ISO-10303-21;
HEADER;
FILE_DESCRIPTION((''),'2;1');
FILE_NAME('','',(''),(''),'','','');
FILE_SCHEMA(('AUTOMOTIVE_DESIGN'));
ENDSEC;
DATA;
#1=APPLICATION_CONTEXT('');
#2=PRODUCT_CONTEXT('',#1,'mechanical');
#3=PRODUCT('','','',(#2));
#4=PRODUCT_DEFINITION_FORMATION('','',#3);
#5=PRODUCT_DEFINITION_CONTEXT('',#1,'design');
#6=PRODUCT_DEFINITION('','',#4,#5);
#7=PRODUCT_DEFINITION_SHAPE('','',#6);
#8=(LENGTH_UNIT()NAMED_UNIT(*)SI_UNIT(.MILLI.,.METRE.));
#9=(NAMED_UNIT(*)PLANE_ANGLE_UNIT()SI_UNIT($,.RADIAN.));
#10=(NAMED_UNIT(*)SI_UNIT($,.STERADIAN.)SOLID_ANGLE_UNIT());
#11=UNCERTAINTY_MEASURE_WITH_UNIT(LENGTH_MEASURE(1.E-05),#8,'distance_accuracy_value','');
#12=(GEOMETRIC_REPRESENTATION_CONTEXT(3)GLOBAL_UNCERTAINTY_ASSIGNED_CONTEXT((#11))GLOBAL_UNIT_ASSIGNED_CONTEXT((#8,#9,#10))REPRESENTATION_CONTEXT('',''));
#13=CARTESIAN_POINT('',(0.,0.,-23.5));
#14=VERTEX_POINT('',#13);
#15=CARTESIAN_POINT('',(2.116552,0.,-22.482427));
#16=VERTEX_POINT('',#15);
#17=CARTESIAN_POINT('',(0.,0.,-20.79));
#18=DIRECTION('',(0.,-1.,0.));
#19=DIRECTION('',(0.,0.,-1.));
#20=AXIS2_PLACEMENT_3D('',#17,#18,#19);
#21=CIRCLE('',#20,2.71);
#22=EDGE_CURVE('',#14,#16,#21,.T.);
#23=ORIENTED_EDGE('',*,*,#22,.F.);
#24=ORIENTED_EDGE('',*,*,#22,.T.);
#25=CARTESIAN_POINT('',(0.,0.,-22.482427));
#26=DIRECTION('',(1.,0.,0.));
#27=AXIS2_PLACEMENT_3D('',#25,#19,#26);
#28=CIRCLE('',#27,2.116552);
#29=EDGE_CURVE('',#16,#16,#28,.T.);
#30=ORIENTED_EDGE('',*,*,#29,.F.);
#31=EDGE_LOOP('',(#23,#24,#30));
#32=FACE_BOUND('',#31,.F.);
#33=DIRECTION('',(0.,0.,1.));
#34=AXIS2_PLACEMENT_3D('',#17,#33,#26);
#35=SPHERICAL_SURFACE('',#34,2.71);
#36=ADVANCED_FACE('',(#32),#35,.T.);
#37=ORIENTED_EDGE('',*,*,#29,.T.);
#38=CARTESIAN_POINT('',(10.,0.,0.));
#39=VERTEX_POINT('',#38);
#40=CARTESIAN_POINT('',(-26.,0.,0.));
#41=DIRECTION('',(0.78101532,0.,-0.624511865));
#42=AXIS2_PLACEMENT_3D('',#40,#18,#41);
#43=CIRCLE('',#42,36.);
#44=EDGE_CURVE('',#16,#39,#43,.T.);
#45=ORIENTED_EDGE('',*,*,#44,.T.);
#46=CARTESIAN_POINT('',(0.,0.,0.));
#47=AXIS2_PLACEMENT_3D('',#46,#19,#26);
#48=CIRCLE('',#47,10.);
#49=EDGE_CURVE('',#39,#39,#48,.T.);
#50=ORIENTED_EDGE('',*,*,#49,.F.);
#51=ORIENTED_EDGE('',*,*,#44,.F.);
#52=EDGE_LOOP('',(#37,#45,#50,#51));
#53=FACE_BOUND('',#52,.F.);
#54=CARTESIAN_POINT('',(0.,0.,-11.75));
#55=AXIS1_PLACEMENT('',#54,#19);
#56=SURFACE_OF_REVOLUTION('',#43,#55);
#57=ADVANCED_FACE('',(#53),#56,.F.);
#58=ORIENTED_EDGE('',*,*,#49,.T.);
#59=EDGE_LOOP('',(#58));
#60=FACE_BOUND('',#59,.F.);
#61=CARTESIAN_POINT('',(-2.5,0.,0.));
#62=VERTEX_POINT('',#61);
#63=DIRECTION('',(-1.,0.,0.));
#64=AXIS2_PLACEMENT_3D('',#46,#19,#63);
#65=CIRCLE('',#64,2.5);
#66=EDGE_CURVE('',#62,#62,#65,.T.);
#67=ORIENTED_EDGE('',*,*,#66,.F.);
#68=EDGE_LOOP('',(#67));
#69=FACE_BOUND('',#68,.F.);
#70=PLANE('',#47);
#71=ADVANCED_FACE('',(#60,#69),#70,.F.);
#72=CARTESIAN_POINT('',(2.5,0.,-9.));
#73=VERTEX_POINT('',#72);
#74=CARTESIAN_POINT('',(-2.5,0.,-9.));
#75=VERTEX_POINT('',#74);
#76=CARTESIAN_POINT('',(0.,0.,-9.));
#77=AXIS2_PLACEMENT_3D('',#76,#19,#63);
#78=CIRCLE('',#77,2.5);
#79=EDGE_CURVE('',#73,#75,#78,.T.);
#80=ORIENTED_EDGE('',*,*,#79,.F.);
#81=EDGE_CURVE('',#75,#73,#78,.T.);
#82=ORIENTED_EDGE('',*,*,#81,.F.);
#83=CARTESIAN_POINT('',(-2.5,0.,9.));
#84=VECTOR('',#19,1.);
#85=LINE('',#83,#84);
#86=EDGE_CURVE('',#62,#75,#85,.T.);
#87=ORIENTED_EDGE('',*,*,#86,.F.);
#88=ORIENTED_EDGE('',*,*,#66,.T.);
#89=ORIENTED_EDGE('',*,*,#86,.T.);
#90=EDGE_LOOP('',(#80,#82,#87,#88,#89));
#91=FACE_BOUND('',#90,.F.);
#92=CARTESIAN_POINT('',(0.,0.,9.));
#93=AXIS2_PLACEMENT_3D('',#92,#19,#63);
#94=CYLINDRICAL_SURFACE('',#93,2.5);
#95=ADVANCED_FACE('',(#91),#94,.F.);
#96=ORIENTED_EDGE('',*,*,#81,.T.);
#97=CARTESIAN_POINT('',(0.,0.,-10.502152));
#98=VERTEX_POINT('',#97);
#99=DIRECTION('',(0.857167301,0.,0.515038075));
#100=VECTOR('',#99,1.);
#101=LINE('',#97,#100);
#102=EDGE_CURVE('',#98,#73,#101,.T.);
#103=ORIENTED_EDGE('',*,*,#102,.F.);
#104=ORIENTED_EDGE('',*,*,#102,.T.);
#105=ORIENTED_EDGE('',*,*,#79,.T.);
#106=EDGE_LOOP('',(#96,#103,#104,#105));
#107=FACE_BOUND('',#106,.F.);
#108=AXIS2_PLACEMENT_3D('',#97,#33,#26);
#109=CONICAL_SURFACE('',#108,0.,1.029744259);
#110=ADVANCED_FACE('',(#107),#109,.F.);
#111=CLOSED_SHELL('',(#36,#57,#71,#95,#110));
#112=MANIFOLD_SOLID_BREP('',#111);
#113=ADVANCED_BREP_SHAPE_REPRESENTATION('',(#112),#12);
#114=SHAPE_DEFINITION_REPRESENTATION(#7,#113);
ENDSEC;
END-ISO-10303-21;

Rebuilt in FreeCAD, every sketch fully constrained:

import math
import FreeCAD as App
import Part
import Sketcher
Q = App.Units.Quantity

doc = App.newDocument("Part")
body = doc.addObject("PartDesign::Body", "Body")

# Sketch on XZ plane
sketch1 = body.newObject("Sketcher::SketchObject", "Sketch")
sketch1.AttachmentSupport = (doc.getObject("XZ_Plane"), [""])
sketch1.MapMode = "FlatFace"
sketch1.addGeometry(Part.LineSegment(App.Vector(10, 0, 0), App.Vector(0, 0, 0)), False)
sketch1.addGeometry(Part.LineSegment(App.Vector(0, 0, 0), App.Vector(0, -23.5, 0)), False)
sketch1.addGeometry(Part.ArcOfCircle(Part.Circle(App.Vector(0, -20.8, 0), App.Vector(0, 0, 1), 2.7), math.radians(-90), math.radians(-39)), False)
sketch1.addGeometry(Part.ArcOfCircle(Part.Circle(App.Vector(-26, 0, 0), App.Vector(0, 0, 1), 36), math.radians(-39), math.radians(0)), False)
sketch1.addConstraint(Sketcher.Constraint("Coincident", 0, 2, 1, 1))
sketch1.addConstraint(Sketcher.Constraint("Coincident", 1, 2, 2, 1))
sketch1.addConstraint(Sketcher.Constraint("Tangent", 2, 2, 3, 1))
sketch1.addConstraint(Sketcher.Constraint("Coincident", 3, 2, 0, 1))
sketch1.addConstraint(Sketcher.Constraint("Horizontal", 0))
sketch1.addConstraint(Sketcher.Constraint("Vertical", 1))
sketch1.addConstraint(Sketcher.Constraint("Coincident", 0, 2, -1, 1))
sketch1.addConstraint(Sketcher.Constraint("PointOnObject", 2, 3, -2))
sketch1.addConstraint(Sketcher.Constraint("PointOnObject", 3, 3, -1))
sketch1.addConstraint(Sketcher.Constraint("Radius", 3, Q("36 mm")))
sketch1.addConstraint(Sketcher.Constraint("DistanceX", 0, 2, 0, 1, Q("10 mm")))
sketch1.addConstraint(Sketcher.Constraint("Radius", 2, Q("2.71 mm")))
revolution = body.newObject("PartDesign::Revolution", "Revolution")
revolution.Profile = sketch1
revolution.ReferenceAxis = (sketch1, ["V_Axis"])
revolution.Angle = 360

# Sketch on XY plane
sketch2 = body.newObject("Sketcher::SketchObject", "Sketch001")
sketch2.AttachmentSupport = (doc.getObject("XY_Plane"), [""])
sketch2.MapMode = "FlatFace"
sketch2.addGeometry(Part.Circle(App.Vector(0, 0, 0), App.Vector(0, 0, 1), 2.5), False)
sketch2.addConstraint(Sketcher.Constraint("Coincident", 0, 3, -1, 1))
sketch2.addConstraint(Sketcher.Constraint("Diameter", 0, Q("5 mm")))
doc.recompute()
hole = body.newObject("PartDesign::Hole", "Hole")
hole.Profile = sketch2
hole.ThreadType = "None"
hole.Diameter = 5
hole.DepthType = "Dimension"
hole.Depth = 9
hole.DrillPoint = "Angled"
hole.DrillPointAngle = 118

doc.recompute()
